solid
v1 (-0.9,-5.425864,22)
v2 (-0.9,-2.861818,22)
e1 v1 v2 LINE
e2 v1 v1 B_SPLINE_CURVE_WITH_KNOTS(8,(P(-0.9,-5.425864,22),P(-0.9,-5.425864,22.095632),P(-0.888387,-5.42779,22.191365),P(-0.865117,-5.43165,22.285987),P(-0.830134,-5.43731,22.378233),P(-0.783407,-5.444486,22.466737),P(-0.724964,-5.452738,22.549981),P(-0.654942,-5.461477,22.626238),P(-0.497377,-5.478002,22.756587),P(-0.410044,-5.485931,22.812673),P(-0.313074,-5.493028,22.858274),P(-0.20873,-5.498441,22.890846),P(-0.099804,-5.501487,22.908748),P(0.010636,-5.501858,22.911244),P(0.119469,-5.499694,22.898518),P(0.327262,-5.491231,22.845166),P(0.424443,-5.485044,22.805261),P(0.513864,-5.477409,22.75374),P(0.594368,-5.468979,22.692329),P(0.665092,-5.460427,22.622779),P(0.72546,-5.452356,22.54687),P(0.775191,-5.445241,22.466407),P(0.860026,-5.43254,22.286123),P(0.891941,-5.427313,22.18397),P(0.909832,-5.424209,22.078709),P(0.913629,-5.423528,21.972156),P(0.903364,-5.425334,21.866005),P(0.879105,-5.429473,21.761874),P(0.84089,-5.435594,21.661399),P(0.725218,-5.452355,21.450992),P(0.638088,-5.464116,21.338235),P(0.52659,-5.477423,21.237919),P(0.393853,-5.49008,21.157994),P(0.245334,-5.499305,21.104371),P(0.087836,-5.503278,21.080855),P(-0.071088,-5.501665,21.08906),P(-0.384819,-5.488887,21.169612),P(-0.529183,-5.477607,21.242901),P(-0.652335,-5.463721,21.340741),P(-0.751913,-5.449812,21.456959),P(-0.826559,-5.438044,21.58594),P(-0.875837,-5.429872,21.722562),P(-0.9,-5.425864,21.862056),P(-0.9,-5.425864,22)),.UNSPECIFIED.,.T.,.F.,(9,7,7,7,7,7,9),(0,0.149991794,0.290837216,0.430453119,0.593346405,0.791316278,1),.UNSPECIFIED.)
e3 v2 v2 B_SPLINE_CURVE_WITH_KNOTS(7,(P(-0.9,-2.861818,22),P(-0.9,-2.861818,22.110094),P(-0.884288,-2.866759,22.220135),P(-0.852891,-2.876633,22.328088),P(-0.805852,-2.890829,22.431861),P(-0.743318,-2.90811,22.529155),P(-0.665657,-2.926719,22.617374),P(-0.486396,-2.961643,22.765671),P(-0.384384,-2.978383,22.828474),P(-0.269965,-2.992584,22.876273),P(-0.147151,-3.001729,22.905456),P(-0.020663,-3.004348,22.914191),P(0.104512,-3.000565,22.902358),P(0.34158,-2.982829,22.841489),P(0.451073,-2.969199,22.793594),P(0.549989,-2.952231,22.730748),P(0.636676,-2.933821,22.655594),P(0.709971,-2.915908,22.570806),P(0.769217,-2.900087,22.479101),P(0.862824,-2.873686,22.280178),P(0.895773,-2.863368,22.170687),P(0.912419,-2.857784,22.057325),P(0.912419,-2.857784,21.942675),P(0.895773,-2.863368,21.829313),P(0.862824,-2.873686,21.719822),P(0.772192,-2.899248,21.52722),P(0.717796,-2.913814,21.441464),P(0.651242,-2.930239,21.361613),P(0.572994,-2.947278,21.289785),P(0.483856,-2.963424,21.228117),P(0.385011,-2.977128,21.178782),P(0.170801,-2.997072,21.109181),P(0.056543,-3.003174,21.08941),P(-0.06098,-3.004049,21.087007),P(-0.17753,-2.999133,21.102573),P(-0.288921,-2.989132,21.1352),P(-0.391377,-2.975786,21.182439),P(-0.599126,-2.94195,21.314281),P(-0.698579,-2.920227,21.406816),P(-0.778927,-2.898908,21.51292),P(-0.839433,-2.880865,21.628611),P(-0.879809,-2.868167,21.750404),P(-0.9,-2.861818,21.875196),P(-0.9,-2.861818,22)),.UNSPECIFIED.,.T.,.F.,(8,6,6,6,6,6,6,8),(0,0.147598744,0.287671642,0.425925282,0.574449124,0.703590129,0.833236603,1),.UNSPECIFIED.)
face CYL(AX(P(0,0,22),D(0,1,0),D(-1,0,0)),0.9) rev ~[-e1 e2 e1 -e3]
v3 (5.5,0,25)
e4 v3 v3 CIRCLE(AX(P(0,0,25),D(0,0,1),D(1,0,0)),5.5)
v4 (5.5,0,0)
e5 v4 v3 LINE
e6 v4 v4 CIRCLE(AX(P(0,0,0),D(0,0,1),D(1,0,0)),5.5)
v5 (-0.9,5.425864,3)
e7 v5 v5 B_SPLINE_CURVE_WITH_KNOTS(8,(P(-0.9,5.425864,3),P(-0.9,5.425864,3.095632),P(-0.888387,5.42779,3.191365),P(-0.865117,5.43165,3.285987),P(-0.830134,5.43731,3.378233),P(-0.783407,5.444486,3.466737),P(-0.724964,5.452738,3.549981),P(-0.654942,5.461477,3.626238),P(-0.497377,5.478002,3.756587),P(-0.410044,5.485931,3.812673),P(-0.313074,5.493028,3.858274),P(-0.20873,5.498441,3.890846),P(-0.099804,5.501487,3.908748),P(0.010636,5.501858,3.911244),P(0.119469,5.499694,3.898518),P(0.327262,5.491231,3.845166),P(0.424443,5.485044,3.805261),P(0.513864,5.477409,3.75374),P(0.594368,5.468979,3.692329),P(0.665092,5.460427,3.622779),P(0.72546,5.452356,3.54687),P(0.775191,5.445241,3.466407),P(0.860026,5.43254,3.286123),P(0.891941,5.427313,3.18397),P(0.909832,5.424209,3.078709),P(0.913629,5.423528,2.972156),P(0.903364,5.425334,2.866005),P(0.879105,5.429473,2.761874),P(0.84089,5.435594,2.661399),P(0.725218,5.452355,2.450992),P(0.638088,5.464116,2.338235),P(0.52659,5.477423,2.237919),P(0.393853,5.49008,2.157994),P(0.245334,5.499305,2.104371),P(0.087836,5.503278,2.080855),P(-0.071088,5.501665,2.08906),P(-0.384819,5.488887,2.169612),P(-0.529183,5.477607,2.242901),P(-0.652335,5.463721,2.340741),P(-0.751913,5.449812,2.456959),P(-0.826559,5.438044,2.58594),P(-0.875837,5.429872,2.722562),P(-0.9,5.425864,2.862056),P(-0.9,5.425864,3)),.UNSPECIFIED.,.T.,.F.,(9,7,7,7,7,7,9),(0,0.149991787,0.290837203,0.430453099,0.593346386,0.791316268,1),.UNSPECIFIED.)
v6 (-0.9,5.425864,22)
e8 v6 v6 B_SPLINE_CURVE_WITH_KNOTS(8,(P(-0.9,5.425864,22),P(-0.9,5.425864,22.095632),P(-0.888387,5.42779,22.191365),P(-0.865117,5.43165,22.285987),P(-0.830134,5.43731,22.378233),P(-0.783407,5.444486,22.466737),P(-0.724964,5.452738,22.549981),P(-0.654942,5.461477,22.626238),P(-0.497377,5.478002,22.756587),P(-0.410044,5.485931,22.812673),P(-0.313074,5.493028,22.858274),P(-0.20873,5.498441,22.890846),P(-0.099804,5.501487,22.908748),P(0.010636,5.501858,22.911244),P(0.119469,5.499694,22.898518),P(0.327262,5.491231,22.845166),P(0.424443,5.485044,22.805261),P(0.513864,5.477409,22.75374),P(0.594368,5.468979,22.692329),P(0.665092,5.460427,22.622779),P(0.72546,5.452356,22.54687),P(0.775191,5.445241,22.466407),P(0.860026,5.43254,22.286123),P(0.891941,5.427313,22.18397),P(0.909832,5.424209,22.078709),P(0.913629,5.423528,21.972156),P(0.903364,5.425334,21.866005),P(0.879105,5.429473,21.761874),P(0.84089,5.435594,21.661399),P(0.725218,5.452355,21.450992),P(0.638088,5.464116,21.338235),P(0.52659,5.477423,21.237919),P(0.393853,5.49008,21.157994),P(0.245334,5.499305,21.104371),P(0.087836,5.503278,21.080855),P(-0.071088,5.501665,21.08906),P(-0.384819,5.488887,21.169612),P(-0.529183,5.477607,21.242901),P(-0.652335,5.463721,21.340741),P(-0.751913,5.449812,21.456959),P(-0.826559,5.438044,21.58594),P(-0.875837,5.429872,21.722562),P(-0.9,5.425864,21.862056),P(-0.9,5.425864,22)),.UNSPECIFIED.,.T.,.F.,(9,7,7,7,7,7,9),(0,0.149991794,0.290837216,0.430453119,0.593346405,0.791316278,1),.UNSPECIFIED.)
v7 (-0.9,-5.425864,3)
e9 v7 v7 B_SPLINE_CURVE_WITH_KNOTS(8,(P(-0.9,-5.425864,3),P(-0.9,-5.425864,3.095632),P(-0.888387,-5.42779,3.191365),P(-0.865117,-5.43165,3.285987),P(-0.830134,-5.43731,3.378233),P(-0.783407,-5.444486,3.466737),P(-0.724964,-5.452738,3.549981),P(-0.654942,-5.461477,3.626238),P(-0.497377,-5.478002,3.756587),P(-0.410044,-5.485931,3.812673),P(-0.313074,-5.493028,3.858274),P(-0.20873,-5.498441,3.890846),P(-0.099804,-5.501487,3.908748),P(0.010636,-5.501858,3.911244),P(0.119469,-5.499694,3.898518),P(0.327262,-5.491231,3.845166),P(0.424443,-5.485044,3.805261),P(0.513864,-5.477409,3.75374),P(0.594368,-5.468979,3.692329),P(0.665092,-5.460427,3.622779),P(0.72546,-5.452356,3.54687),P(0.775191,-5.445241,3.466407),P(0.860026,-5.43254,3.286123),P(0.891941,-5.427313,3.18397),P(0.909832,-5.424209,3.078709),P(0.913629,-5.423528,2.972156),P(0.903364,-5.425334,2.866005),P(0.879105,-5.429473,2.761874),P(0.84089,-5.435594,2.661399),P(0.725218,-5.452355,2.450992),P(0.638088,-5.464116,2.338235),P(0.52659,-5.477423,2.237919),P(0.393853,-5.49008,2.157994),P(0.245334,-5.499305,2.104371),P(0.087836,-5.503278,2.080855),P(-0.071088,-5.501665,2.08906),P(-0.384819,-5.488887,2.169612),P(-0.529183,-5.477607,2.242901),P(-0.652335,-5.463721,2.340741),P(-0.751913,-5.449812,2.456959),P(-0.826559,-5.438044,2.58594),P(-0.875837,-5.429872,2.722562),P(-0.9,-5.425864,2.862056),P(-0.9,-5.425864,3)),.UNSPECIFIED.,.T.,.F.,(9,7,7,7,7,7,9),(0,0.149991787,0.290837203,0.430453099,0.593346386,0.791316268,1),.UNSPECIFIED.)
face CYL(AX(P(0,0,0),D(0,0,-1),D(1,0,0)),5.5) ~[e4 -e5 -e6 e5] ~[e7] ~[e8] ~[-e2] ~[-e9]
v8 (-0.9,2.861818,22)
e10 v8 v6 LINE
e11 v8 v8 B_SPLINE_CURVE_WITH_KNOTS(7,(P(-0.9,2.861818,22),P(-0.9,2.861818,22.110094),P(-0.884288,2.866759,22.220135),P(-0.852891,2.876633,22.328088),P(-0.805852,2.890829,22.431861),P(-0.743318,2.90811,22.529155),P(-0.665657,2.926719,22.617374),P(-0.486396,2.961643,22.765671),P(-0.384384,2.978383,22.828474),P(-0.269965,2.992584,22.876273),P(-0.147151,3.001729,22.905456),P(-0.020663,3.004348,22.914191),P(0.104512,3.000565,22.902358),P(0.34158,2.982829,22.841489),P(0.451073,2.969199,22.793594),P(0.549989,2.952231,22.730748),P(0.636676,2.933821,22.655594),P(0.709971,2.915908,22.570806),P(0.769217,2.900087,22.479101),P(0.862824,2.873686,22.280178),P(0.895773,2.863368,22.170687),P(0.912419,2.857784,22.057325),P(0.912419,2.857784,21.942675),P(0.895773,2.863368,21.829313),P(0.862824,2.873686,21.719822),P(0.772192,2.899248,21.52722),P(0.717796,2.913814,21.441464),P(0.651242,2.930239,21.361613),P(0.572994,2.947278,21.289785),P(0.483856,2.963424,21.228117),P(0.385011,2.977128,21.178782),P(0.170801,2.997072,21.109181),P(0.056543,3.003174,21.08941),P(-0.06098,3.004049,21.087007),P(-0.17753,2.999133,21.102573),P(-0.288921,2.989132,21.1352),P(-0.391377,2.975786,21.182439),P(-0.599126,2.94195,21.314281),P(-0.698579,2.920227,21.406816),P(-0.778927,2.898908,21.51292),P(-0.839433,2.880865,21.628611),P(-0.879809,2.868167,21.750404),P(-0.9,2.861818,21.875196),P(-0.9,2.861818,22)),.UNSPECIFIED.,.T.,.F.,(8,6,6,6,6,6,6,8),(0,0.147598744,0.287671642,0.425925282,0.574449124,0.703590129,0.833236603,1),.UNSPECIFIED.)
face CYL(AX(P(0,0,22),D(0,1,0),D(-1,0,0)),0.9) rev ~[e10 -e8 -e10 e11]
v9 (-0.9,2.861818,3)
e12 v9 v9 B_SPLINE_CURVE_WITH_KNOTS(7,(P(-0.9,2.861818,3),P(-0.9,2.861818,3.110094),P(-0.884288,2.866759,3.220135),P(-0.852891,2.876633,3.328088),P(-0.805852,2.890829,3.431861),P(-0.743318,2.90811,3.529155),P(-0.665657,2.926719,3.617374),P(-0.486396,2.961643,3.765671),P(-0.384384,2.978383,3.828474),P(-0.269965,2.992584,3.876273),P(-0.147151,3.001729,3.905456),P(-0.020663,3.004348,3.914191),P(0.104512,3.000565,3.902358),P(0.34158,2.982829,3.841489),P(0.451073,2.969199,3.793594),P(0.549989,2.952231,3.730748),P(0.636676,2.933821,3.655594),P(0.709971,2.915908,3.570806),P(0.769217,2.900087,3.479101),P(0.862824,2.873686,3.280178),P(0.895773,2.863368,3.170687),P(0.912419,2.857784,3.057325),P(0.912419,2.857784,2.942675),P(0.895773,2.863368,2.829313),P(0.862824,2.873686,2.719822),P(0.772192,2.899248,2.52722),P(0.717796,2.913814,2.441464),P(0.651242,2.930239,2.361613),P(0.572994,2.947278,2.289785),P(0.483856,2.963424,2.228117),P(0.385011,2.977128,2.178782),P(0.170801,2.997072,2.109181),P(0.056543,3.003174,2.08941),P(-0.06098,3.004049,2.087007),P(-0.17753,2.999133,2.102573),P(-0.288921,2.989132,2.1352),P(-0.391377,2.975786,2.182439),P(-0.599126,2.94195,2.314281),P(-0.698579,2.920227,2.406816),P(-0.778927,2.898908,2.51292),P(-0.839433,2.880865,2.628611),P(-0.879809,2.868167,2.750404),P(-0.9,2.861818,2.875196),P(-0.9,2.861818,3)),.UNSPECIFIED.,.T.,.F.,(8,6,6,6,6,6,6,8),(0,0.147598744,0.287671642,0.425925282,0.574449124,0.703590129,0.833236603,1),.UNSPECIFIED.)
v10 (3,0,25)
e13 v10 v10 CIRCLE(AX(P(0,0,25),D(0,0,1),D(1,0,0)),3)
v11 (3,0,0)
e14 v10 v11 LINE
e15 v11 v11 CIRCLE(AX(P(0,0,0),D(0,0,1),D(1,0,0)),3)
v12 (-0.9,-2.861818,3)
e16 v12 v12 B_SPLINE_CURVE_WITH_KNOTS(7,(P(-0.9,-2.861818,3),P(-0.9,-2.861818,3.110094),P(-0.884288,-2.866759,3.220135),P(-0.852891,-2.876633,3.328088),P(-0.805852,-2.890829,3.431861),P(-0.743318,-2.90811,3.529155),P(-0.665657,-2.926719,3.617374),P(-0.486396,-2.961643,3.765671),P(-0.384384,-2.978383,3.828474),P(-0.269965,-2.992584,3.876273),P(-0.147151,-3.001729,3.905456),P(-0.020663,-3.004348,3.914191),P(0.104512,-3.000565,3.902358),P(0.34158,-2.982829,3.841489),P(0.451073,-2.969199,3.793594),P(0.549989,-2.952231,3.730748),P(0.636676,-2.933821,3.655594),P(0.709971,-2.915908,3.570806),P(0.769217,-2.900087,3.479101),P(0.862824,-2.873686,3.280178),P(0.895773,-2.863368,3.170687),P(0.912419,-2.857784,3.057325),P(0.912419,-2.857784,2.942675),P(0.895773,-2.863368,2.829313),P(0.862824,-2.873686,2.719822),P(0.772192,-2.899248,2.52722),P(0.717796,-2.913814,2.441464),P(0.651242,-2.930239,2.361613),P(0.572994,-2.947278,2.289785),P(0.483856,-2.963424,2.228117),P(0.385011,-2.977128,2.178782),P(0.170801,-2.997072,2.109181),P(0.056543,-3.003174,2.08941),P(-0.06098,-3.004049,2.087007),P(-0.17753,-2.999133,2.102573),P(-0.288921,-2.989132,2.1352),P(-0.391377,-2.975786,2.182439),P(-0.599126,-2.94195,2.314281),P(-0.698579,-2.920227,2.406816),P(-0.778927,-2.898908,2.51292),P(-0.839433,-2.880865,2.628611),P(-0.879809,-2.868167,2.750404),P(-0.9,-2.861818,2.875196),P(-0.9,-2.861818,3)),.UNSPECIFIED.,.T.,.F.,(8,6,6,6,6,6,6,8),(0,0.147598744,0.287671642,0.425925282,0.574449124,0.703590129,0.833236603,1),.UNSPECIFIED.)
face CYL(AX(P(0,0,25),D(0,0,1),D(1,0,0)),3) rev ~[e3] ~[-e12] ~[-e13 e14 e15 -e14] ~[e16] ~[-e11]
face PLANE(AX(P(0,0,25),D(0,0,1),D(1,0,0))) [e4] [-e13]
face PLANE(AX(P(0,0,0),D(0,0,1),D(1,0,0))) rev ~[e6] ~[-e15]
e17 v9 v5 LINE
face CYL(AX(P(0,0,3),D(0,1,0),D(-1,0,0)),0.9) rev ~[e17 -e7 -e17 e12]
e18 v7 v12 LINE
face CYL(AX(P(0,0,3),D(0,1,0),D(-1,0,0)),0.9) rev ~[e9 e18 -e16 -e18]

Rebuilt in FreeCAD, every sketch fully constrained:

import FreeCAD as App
import Part
import Sketcher
from FreeCAD import Vector

doc = App.newDocument("Part")
body = doc.addObject("PartDesign::Body", "Body")

# Sketch on XY plane
sketch1 = body.newObject("Sketcher::SketchObject", "Sketch")
sketch1.AttachmentSupport = (doc.getObject("XY_Plane"), [""])
sketch1.MapMode = "FlatFace"
sketch1.addGeometry(Part.Circle(Vector(0, 0, 0), Vector(0, 0, 1), 6), False)
sketch1.addConstraint([
    Sketcher.Constraint("Coincident", 0, 3, -1, 1),
    Sketcher.Constraint("Diameter", 0, 11.0),
])
pad1 = body.newObject("PartDesign::Pad", "Pad")
pad1.Profile = sketch1
pad1.Length = 25

# Sketch on XY plane
sketch2 = body.newObject("Sketcher::SketchObject", "Sketch001")
sketch2.AttachmentSupport = (doc.getObject("XY_Plane"), [""])
sketch2.MapMode = "FlatFace"
sketch2.AttachmentOffset = App.Placement(Vector(0, 0, 25), App.Rotation())
sketch2.addGeometry(Part.Circle(Vector(0, 0, 0), Vector(0, 0, 1), 3), False)
sketch2.addConstraint([
    Sketcher.Constraint("Coincident", 0, 3, -1, 1),
    Sketcher.Constraint("Diameter", 0, 6.0),
])
pocket1 = body.newObject("PartDesign::Pocket", "Pocket")
pocket1.Profile = sketch2
pocket1.Type = "ThroughAll"
pocket1.Midplane = True

# Sketch on XZ plane
sketch3 = body.newObject("Sketcher::SketchObject", "Sketch002")
sketch3.AttachmentSupport = (doc.getObject("XZ_Plane"), [""])
sketch3.MapMode = "FlatFace"
sketch3.addGeometry([
    Part.Circle(Vector(0, 3, 0), Vector(0, 0, 1), 0.9),
    Part.Circle(Vector(0, 22, 0), Vector(0, 0, 1), 0.9),
], False)
sketch3.addConstraint([
    Sketcher.Constraint("Equal", 0, 1),
    Sketcher.Constraint("PointOnObject", 0, 3, -2),
    Sketcher.Constraint("PointOnObject", 1, 3, -2),
    Sketcher.Constraint("Diameter", 0, 1.8),
    Sketcher.Constraint("DistanceY", -1, 1, 0, 3, 3.0),
    Sketcher.Constraint("DistanceY", -1, 1, 1, 3, 22.0),
])
pocket2 = body.newObject("PartDesign::Pocket", "Pocket001")
pocket2.Profile = sketch3
pocket2.Type = "ThroughAll"
pocket2.Midplane = True

doc.recompute()
